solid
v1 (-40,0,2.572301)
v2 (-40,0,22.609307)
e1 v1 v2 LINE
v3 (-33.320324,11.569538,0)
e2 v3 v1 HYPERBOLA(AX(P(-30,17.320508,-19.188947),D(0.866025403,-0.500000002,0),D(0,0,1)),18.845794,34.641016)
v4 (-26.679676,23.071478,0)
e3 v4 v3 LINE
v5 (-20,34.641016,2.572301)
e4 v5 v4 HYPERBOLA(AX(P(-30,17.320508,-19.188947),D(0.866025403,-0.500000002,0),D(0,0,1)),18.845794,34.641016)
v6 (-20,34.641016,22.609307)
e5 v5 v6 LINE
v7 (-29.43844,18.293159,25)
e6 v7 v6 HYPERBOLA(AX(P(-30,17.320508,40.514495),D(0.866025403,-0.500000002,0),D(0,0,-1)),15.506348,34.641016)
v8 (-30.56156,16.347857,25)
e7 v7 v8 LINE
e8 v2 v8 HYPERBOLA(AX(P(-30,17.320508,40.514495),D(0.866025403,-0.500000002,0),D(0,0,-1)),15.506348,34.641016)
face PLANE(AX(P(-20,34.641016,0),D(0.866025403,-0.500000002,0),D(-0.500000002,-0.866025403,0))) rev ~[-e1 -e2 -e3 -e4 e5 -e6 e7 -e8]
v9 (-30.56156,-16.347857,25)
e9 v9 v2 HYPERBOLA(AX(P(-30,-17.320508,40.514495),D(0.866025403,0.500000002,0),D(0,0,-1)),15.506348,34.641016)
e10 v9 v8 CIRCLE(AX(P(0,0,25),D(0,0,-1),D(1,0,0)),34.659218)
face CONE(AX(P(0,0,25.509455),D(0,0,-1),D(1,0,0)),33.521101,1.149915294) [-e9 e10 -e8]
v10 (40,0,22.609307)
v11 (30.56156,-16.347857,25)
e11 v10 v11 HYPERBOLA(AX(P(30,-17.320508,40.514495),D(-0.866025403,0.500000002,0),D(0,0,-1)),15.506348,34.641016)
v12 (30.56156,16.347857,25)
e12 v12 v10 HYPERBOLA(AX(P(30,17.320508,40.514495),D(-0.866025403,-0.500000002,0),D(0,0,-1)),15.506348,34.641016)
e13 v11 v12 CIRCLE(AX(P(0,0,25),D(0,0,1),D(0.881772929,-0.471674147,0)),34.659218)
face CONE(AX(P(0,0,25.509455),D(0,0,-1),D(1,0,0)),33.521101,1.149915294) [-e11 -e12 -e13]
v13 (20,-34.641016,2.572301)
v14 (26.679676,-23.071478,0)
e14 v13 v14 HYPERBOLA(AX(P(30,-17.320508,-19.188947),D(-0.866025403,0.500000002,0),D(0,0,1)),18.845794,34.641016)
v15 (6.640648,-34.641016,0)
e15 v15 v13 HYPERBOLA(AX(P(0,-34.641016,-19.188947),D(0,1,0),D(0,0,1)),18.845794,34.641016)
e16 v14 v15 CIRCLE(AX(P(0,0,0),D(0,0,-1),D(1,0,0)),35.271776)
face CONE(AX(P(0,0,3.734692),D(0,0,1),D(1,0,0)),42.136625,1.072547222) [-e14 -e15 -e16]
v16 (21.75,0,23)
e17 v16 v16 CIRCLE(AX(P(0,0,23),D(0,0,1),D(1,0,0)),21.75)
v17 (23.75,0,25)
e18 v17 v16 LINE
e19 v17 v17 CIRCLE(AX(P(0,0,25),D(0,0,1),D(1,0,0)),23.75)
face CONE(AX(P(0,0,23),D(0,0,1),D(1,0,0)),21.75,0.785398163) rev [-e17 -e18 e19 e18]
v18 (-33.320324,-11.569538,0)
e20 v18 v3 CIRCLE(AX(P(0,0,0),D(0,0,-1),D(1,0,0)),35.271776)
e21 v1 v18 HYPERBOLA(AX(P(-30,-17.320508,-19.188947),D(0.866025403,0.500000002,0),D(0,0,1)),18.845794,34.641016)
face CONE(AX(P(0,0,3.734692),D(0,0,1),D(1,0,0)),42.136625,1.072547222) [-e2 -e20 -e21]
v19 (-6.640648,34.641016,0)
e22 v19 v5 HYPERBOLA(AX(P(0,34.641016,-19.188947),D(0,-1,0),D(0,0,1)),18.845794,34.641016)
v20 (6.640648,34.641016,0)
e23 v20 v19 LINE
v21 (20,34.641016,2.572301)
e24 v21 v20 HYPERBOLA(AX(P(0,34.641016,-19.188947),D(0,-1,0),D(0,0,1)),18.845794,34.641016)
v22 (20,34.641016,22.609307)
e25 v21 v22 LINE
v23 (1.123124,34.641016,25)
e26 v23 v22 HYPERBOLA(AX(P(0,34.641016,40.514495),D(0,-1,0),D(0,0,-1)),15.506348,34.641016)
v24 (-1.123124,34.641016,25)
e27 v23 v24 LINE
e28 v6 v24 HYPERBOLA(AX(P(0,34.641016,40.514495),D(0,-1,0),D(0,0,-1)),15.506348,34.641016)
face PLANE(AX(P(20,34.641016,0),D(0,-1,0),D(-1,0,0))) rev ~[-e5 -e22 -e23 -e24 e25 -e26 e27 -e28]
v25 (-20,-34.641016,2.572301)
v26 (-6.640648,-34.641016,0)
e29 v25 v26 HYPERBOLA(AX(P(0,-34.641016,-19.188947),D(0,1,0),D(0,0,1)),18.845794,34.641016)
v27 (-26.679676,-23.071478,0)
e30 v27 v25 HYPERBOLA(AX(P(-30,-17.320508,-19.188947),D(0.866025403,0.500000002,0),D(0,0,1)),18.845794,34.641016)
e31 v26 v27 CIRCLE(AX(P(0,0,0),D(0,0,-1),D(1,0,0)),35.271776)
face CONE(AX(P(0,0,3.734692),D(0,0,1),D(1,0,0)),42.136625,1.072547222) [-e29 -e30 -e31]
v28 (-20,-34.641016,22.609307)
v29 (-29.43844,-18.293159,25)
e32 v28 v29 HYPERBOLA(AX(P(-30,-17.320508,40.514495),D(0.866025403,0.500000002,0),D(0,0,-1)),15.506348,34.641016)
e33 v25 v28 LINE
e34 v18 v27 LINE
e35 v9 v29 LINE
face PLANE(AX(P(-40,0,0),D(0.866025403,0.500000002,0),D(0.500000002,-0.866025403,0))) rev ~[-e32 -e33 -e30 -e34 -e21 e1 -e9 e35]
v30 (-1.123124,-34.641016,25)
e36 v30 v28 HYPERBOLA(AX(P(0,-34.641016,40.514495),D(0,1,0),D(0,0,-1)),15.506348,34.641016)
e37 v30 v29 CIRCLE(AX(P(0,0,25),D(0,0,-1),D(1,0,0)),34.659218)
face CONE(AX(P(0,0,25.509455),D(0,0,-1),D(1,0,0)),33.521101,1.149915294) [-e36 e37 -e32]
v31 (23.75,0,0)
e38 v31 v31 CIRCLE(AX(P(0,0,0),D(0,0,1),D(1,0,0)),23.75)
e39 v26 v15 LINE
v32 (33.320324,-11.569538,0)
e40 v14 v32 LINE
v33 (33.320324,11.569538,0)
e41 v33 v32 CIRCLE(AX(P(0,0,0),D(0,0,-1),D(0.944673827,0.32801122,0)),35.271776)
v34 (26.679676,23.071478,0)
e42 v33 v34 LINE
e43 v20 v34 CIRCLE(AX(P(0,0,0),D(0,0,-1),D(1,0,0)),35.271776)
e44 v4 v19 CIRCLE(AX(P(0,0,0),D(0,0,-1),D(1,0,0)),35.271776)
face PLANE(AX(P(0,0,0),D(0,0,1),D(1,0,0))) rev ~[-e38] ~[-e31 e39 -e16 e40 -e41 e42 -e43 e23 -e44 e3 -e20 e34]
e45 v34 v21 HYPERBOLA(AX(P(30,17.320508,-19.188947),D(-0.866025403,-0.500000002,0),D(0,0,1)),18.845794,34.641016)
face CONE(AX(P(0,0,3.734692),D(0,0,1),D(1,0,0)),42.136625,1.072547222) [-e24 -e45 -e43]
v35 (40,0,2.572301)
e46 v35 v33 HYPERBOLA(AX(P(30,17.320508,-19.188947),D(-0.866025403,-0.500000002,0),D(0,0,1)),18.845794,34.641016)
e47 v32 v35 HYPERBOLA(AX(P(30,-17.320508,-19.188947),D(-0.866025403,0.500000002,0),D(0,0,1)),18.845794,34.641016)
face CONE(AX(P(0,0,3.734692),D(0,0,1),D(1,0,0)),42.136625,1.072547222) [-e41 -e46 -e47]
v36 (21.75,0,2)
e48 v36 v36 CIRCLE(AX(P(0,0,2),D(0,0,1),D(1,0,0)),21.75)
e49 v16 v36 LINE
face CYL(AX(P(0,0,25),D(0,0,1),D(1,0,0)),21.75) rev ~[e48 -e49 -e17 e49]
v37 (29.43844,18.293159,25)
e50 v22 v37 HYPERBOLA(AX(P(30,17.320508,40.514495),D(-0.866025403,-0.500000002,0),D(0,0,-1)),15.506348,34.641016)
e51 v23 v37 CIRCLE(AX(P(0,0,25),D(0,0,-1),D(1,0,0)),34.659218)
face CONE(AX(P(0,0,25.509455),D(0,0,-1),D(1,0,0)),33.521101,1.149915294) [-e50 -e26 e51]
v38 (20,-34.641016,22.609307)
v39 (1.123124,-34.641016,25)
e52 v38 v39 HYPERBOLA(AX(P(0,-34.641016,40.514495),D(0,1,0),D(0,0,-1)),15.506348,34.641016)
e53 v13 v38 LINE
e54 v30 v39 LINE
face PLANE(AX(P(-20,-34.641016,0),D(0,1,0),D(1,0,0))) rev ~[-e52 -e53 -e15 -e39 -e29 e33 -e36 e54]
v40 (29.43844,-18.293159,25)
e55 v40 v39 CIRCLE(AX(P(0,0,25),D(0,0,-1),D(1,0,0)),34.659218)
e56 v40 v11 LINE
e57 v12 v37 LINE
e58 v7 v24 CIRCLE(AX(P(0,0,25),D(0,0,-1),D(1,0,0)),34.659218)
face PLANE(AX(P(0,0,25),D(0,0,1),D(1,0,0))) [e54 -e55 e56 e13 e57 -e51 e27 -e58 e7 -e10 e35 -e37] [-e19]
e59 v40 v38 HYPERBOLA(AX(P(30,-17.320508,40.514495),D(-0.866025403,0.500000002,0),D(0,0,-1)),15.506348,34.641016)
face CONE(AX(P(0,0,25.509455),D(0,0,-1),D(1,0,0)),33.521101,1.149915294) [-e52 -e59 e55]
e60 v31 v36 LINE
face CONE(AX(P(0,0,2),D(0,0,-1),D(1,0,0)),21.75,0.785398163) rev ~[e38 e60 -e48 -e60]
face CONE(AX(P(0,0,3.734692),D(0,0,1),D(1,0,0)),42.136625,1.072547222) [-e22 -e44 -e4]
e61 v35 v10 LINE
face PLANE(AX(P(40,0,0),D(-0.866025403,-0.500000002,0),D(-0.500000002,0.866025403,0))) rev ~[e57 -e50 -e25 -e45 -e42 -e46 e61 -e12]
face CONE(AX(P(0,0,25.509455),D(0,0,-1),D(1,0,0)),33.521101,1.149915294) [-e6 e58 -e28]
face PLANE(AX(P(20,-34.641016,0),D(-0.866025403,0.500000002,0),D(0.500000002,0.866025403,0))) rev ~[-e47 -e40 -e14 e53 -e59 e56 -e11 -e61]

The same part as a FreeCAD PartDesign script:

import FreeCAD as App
import Part
import Sketcher
Q = App.Units.Quantity


def edges_at(feature, points):
    """Names of the edges that pass closest to the given points."""
    edges = feature.Shape.Edges
    near = lambda p: min(range(len(edges)), key=lambda i: edges[i].distToShape(Part.Vertex(*p))[0])
    return sorted({f"Edge{near(p) + 1}" for p in points})


def add_polygon(sketch, points):
    """Adds a closed chain of lines whose ends are joined by coincident constraints."""
    first, n = sketch.GeometryCount, len(points)
    for a, b in zip(points, points[1:] + points[:1]):
        sketch.addGeometry(Part.LineSegment(App.Vector(*a, 0), App.Vector(*b, 0)), False)
    for i in range(n):
        sketch.addConstraint(Sketcher.Constraint("Coincident", first + i, 2, first + (i + 1) % n, 1))

doc = App.newDocument("Part")
body = doc.addObject("PartDesign::Body", "Body")

# Sketch on XY plane
sketch1 = body.newObject("Sketcher::SketchObject", "Sketch")
sketch1.AttachmentSupport = (doc.getObject("XY_Plane"), [""])
sketch1.MapMode = "FlatFace"
add_polygon(sketch1, [(20, 34.641016), (-20, 34.641016), (-40, 0), (-20, -34.641016), (20, -34.641016), (40, 0)])  # lines 0-5
sketch1.addConstraint([
    Sketcher.Constraint("Horizontal", 0),
    Sketcher.Constraint("Horizontal", 3),
    Sketcher.Constraint("Symmetric", 0, 2, 3, 2, -1, 1),
    Sketcher.Constraint("Symmetric", 1, 2, 4, 2, -1, 1),
    Sketcher.Constraint("PointOnObject", 1, 2, -1),
    Sketcher.Constraint("Parallel", 2, 5),
    Sketcher.Constraint("Vertical", 0, 2, 2, 2),
    Sketcher.Constraint("DistanceX", 0, 2, 0, 1, Q("40 mm")),
    Sketcher.Constraint("Angle", 1, Q("-120 deg")),
    Sketcher.Constraint("Distance", 1, Q("40 mm")),
])
pad1 = body.newObject("PartDesign::Pad", "Pad")
pad1.Profile = sketch1
pad1.Length = 25

# Sketch on XY plane
sketch2 = body.newObject("Sketcher::SketchObject", "Sketch001")
sketch2.AttachmentSupport = (doc.getObject("XY_Plane"), [""])
sketch2.MapMode = "FlatFace"
sketch2.AttachmentOffset = App.Placement(App.Vector(0, 0, 25), App.Rotation())
sketch2.addGeometry(Part.Circle(App.Vector(0, 0, 0), App.Vector(0, 0, 1), 21.75), False)
sketch2.addConstraint([
    Sketcher.Constraint("Coincident", 0, 3, -1, 1),
    Sketcher.Constraint("Diameter", 0, Q("43.5 mm")),
])
pocket1 = body.newObject("PartDesign::Pocket", "Pocket")
pocket1.Profile = sketch2
pocket1.Type = "ThroughAll"
doc.recompute()

chamfer = body.newObject("PartDesign::Chamfer", "Chamfer")
chamfer.Base = (pocket1, edges_at(pocket1, [(-21.75, 0, 0), (-21.75, 0, 25)]))
chamfer.Size = 2

# Sketch on XZ plane
sketch3 = body.newObject("Sketcher::SketchObject", "Sketch002")
sketch3.AttachmentSupport = (doc.getObject("XZ_Plane"), [""])
sketch3.MapMode = "FlatFace"
add_polygon(sketch3, [(42.406738, 25.509455), (33.521101, 25.509455), (42.406738, 21.53198)])  # lines 0-2
add_polygon(sketch3, [(42.136625, 3.734692), (33.521101, -0.952422), (42.136625, -0.952422)])  # lines 3-5
sketch3.addConstraint([
    Sketcher.Constraint("Horizontal", 0),
    Sketcher.Constraint("Vertical", 2),
    Sketcher.Constraint("Horizontal", 4),
    Sketcher.Constraint("Vertical", 5),
    Sketcher.Constraint("Vertical", 0, 2, 3, 2),
    Sketcher.Constraint("DistanceX", -1, 1, 0, 2, Q("33.521101 mm")),
    Sketcher.Constraint("DistanceY", 3, 2, 1, 2, Q("22.484402 mm")),
    Sketcher.Constraint("Distance", 3, Q("9.807971 mm")),
    Sketcher.Constraint("DistanceX", 0, 2, 0, 1, Q("8.885637 mm")),
    Sketcher.Constraint("DistanceX", 4, 1, 4, 2, Q("8.615524 mm")),
    Sketcher.Constraint("DistanceY", 2, 1, 2, 2, Q("3.977475 mm")),
    Sketcher.Constraint("DistanceY", -1, 1, 1, 2, Q("21.53198 mm")),
])
groove = body.newObject("PartDesign::Groove", "Groove")
groove.Profile = sketch3
groove.ReferenceAxis = (sketch3, ["V_Axis"])
groove.Angle = 360

doc.recompute()
